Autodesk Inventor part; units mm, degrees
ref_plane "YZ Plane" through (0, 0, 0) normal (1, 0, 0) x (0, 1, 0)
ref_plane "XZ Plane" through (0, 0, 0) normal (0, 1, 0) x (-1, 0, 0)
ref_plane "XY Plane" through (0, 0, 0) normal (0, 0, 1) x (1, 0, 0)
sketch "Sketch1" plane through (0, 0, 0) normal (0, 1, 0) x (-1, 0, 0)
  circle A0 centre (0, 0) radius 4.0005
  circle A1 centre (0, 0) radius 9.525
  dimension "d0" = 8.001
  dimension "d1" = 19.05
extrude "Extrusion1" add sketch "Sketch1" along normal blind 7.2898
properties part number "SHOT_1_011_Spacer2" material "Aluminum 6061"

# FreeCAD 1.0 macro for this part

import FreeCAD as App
import Part
import Sketcher

V = App.Vector
Q = App.Units.Quantity

doc = App.newDocument("Part")
body = doc.addObject("PartDesign::Body", "Body")

# Sketch on XZ plane
sketch1 = body.newObject("Sketcher::SketchObject", "Sketch")
sketch1.AttachmentSupport = (doc.getObject("XZ_Plane"), [""])
sketch1.MapMode = "FlatFace"
sketch1.addGeometry([
    Part.Circle(V(0, 0, 0), V(0, 0, 1), 9.525),
    Part.Circle(V(0, 0, 0), V(0, 0, 1), 4.0005),
], False)
sketch1.addConstraint([
    Sketcher.Constraint("Coincident", 0, 3, -1, 1),
    Sketcher.Constraint("Coincident", 1, 3, -1, 1),
    Sketcher.Constraint("Diameter", 0, Q("0.75 in")),
    Sketcher.Constraint("Diameter", 1, Q("0.315 in")),
])
pad1 = body.newObject("PartDesign::Pad", "Pad")
pad1.Profile = sketch1
pad1.Length = Q("0.287 in")
pad1.Reversed = True

doc.recompute()
